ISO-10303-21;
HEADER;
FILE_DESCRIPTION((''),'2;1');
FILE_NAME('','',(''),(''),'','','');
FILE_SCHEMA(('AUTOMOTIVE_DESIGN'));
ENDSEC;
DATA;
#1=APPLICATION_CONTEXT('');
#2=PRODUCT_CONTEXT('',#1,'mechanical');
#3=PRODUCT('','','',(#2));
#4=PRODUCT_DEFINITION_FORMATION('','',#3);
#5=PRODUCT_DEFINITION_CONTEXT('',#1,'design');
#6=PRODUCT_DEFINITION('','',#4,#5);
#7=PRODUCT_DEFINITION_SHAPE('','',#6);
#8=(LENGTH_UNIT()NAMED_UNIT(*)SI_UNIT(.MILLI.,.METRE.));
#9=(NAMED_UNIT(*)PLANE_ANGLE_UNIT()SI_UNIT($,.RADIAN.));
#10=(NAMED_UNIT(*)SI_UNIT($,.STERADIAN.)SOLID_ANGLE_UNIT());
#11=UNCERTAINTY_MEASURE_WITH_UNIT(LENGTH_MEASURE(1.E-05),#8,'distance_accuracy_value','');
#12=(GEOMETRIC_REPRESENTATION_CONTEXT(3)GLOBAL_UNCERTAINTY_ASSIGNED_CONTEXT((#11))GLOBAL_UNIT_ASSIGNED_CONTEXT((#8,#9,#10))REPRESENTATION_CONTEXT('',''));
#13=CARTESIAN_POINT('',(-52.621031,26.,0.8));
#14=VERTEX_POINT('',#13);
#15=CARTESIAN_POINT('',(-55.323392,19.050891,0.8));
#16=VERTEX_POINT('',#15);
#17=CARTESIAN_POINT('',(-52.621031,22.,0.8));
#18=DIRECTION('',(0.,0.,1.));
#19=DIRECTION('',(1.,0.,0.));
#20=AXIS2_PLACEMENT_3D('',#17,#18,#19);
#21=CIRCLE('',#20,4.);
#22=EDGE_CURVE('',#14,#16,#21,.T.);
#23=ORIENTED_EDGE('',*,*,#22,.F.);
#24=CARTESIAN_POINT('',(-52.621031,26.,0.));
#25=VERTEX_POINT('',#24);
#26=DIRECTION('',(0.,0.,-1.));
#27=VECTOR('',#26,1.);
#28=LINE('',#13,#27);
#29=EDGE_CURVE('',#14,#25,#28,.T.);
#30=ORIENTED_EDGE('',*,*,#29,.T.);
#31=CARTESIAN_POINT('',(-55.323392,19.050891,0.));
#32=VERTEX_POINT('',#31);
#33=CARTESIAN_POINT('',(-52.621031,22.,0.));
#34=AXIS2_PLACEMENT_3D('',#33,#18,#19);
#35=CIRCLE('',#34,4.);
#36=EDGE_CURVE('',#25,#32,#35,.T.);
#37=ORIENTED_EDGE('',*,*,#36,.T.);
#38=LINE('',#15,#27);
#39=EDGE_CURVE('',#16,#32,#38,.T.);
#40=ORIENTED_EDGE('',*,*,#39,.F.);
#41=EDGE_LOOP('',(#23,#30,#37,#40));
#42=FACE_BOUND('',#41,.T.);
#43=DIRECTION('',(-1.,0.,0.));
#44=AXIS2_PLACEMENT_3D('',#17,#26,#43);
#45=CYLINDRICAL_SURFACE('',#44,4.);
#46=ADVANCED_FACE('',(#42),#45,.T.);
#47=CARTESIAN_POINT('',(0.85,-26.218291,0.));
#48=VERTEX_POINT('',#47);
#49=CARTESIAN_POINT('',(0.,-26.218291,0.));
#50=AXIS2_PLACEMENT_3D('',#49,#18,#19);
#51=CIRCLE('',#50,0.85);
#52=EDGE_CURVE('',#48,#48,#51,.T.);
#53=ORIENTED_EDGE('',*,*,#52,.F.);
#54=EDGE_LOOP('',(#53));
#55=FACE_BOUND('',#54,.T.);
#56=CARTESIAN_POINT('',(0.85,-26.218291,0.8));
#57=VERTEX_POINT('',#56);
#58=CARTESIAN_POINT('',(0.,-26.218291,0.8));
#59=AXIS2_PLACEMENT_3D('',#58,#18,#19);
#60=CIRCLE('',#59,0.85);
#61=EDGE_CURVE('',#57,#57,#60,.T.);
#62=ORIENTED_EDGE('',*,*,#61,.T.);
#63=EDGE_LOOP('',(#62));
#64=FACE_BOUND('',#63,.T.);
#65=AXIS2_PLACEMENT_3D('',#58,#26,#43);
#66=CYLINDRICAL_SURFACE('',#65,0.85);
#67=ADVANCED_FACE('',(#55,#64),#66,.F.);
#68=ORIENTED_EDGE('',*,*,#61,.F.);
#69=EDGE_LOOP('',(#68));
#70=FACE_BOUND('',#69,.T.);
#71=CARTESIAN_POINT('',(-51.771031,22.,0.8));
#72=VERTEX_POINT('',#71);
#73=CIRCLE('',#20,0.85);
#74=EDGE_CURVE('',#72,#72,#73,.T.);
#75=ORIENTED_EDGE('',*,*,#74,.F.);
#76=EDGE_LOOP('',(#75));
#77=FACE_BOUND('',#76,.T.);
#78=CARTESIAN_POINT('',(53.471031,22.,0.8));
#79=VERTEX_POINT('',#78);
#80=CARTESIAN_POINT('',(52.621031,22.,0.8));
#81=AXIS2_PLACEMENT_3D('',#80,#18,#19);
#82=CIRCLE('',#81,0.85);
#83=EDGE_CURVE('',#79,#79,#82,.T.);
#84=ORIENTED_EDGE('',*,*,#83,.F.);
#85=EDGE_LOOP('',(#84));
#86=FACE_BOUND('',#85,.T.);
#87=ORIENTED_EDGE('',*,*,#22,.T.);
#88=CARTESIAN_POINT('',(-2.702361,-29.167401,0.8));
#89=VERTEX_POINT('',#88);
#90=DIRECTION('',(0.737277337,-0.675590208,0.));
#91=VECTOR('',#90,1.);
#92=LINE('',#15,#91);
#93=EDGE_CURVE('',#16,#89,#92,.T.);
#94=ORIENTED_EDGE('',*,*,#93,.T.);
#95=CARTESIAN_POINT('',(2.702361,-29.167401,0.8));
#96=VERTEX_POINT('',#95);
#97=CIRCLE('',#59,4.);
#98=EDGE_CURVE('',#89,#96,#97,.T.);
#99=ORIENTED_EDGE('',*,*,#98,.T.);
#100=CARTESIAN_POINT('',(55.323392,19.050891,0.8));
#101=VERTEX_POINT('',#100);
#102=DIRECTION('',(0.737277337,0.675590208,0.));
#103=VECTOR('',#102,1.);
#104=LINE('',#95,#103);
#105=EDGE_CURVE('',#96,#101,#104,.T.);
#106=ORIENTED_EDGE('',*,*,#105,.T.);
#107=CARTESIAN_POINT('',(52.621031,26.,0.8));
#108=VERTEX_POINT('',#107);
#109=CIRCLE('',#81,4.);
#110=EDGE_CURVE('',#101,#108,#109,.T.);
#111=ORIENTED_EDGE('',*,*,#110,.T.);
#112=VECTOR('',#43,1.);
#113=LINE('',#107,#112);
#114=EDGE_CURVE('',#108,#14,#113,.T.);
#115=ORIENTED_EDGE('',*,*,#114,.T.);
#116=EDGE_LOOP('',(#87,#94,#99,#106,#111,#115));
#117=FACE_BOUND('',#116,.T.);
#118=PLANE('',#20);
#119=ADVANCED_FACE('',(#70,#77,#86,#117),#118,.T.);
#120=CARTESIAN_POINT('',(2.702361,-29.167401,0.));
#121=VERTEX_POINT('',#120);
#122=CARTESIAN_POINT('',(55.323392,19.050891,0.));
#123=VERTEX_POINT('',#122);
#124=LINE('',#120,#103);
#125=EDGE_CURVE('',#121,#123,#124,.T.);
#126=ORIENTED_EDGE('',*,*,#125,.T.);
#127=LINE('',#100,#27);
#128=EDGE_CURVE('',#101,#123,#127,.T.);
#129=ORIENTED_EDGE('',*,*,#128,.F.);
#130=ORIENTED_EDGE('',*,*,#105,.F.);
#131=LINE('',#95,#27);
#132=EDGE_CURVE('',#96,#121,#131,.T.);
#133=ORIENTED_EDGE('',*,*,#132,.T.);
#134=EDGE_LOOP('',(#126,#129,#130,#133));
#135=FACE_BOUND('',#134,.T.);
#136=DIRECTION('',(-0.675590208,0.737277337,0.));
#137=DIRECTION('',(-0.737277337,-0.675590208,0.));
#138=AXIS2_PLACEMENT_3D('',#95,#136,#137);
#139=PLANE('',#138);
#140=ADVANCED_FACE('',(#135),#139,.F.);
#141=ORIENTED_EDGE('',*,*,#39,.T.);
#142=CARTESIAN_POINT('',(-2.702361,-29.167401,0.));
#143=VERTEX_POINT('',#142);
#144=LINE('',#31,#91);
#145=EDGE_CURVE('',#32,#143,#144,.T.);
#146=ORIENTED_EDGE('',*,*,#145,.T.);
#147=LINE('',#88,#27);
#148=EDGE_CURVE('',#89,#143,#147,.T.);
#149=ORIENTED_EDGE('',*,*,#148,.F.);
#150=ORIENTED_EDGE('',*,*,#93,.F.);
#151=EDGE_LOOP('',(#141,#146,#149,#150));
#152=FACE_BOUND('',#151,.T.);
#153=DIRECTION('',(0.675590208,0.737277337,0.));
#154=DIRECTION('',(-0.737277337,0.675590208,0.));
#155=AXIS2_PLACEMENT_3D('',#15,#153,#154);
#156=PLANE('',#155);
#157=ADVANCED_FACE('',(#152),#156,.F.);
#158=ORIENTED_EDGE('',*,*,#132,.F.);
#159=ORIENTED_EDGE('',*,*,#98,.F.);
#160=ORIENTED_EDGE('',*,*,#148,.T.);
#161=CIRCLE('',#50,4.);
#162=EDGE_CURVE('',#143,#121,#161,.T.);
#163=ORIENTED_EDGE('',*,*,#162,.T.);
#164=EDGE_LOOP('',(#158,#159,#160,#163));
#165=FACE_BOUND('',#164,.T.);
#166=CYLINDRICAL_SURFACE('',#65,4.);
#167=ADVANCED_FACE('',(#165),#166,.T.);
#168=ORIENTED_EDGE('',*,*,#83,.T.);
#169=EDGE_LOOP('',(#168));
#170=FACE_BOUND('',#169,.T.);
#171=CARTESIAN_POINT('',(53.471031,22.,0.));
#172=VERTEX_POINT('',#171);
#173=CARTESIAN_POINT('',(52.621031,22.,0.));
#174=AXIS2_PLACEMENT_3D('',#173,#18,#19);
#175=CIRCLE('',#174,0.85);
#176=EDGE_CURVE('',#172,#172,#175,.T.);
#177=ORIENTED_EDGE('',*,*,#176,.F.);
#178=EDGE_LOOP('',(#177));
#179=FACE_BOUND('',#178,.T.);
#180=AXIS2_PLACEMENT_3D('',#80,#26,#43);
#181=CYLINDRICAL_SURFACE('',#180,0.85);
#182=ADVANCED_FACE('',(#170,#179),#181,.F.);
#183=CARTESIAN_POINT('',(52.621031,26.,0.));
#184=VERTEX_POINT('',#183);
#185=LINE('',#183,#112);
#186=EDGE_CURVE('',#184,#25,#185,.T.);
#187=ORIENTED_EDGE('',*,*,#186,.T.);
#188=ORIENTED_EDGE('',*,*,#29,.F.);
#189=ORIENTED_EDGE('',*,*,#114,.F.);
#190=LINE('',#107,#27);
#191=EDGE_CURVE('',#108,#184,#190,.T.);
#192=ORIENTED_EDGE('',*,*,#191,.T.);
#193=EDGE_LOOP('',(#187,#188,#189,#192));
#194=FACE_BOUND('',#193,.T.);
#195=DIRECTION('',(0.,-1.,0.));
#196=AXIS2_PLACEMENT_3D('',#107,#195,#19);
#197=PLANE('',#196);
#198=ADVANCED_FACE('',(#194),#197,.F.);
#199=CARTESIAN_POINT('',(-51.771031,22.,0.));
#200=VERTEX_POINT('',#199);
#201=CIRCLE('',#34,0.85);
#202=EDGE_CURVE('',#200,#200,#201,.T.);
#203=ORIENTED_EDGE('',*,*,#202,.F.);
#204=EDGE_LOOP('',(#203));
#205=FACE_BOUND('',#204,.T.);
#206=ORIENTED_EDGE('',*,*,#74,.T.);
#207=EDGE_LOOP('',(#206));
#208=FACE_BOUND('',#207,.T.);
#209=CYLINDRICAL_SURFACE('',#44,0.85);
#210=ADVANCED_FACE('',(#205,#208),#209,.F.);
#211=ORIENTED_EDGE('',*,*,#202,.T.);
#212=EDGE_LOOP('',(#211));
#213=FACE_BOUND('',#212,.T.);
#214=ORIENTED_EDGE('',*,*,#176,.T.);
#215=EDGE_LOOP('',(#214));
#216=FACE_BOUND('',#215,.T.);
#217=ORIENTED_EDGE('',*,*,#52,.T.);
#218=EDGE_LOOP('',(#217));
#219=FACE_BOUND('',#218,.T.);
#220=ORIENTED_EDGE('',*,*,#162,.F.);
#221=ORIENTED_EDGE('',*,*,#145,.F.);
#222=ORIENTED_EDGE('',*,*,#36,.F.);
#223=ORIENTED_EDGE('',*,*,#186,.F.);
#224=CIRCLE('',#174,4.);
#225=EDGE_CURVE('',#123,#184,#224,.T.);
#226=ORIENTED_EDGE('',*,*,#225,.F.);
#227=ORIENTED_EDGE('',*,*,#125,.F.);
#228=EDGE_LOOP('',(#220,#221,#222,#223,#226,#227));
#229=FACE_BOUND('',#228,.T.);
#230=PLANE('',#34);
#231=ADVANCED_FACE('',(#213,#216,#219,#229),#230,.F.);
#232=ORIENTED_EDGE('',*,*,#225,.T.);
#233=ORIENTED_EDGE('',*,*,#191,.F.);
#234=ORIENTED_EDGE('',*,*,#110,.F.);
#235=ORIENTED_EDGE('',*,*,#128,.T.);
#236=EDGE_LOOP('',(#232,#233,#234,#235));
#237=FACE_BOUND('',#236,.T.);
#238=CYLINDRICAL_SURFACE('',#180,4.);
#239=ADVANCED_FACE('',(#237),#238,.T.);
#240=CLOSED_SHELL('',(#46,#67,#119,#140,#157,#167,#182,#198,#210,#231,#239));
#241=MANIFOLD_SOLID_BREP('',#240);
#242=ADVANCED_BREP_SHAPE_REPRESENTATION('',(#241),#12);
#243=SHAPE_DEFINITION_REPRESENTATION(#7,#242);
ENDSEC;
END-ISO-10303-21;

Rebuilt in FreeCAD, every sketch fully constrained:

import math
import FreeCAD as App
import Part
import Sketcher
Q = App.Units.Quantity

doc = App.newDocument("Part")
body = doc.addObject("PartDesign::Body", "Body")

# Sketch on XY plane
sketch1 = doc.addObject("Sketcher::SketchObject", "Sketch")
body.addObject(sketch1)
sketch1.AttachmentSupport = (doc.XY_Plane, [""])
sketch1.MapMode = "FlatFace"
sketch1.addGeometry([
    Part.LineSegment(App.Vector(52.6, 26, 0), App.Vector(-52.6, 26, 0)),  # 0
    Part.ArcOfCircle(Part.Circle(App.Vector(-52.6, 22, 0), App.Vector(0, 0, 1), 4), math.radians(90), math.radians(227)),  # 1
    Part.LineSegment(App.Vector(-55.3, 19.1, 0), App.Vector(-2.7, -29.2, 0)),  # 2
    Part.ArcOfCircle(Part.Circle(App.Vector(0, -26.2, 0), App.Vector(0, 0, 1), 4), math.radians(-132), math.radians(-48)),  # 3
    Part.LineSegment(App.Vector(2.7, -29.2, 0), App.Vector(55.3, 19.1, 0)),  # 4
    Part.ArcOfCircle(Part.Circle(App.Vector(52.6, 22, 0), App.Vector(0, 0, 1), 4), math.radians(-47), math.radians(90)),  # 5
    Part.Circle(App.Vector(0, -26.2, 0), App.Vector(0, 0, 1), 0.8),  # 6
    Part.Circle(App.Vector(-52.6, 22, 0), App.Vector(0, 0, 1), 0.8),  # 7
    Part.Circle(App.Vector(52.6, 22, 0), App.Vector(0, 0, 1), 0.8),  # 8
], False)
sketch1.addConstraint([
    Sketcher.Constraint("Tangent", 0, 2, 1, 1),
    Sketcher.Constraint("Tangent", 1, 2, 2, 1),
    Sketcher.Constraint("Tangent", 2, 2, 3, 1),
    Sketcher.Constraint("Tangent", 3, 2, 4, 1),
    Sketcher.Constraint("Tangent", 4, 2, 5, 1),
    Sketcher.Constraint("Tangent", 5, 2, 0, 1),
    Sketcher.Constraint("Horizontal", 0),
    Sketcher.Constraint("Coincident", 6, 3, 3, 3),
    Sketcher.Constraint("Coincident", 7, 3, 1, 3),
    Sketcher.Constraint("Coincident", 8, 3, 5, 3),
    Sketcher.Constraint("Equal", 1, 3),
    Sketcher.Constraint("Equal", 3, 5),
    Sketcher.Constraint("Equal", 6, 7),
    Sketcher.Constraint("Equal", 7, 8),
    Sketcher.Constraint("Symmetric", 2, 2, 3, 2, -2),
    Sketcher.Constraint("Radius", 1, Q("4 mm")),
    Sketcher.Constraint("Diameter", 6, Q("1.7 mm")),
    Sketcher.Constraint("DistanceY", -1, 1, 1, 3, Q("22 mm")),
    Sketcher.Constraint("Angle", 2, Q("-42.5 deg")),
    Sketcher.Constraint("Distance", 2, Q("71.372099 mm")),
])
pad1 = doc.addObject("PartDesign::Pad", "Pad")
body.addObject(pad1)
pad1.Profile = sketch1
pad1.Length = 0.8

doc.recompute()
